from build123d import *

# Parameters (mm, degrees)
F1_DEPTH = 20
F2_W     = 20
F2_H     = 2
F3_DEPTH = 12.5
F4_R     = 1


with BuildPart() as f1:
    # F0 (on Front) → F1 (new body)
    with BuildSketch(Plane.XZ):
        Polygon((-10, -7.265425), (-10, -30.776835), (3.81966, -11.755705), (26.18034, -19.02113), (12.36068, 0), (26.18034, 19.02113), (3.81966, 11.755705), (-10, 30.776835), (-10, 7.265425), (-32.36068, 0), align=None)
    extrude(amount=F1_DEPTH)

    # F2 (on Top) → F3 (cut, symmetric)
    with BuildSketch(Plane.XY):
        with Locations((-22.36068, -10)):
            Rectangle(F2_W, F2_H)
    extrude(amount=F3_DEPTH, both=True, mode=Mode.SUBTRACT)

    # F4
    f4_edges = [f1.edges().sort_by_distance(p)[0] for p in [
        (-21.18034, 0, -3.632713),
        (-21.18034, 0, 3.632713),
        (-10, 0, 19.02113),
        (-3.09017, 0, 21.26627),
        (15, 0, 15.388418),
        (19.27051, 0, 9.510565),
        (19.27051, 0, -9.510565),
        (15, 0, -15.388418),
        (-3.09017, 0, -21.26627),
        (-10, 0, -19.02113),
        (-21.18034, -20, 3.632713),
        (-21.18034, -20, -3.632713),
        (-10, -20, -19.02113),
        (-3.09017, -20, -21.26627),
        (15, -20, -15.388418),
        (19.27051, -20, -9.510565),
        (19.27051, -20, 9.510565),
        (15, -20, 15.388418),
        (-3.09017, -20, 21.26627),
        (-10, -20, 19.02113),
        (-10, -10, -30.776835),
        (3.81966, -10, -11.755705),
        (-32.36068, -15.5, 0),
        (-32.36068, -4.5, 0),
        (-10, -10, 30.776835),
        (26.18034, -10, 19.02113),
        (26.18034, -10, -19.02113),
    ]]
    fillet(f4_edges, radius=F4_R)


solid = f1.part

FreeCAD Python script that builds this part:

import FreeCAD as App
import Part
import Sketcher

V = App.Vector
Q = App.Units.Quantity


def edges_at(feature, points):
    """Names of the edges that pass closest to the given points."""
    edges = feature.Shape.Edges
    near = lambda p: min(range(len(edges)), key=lambda i: edges[i].distToShape(Part.Vertex(*p))[0])
    return sorted({f"Edge{near(p) + 1}" for p in points})

doc = App.newDocument("Part")
body = doc.addObject("PartDesign::Body", "Body")

# Sketch on XZ plane
sketch1 = body.newObject("Sketcher::SketchObject", "Sketch")
sketch1.AttachmentSupport = (doc.getObject("XZ_Plane"), [""])
sketch1.MapMode = "FlatFace"
sketch1.addGeometry([
    Part.LineSegment(V(-10, -7.265425, 0), V(-10, -30.776835, 0)),  # 0
    Part.LineSegment(V(-10, -30.776835, 0), V(3.81966, -11.755705, 0)),  # 1
    Part.LineSegment(V(3.81966, -11.755705, 0), V(26.18034, -19.02113, 0)),  # 2
    Part.LineSegment(V(26.18034, -19.02113, 0), V(12.36068, 0, 0)),  # 3
    Part.LineSegment(V(12.36068, 0, 0), V(26.18034, 19.02113, 0)),  # 4
    Part.LineSegment(V(26.18034, 19.02113, 0), V(3.81966, 11.755705, 0)),  # 5
    Part.LineSegment(V(3.81966, 11.755705, 0), V(-10, 30.776835, 0)),  # 6
    Part.LineSegment(V(-10, 30.776835, 0), V(-10, 7.265425, 0)),  # 7
    Part.LineSegment(V(-10, 7.265425, 0), V(-32.36068, 0, 0)),  # 8
    Part.LineSegment(V(-32.36068, 0, 0), V(-10, -7.265425, 0)),  # 9
], False)
sketch1.addConstraint([
    Sketcher.Constraint("Coincident", 0, 2, 1, 1),
    Sketcher.Constraint("Coincident", 1, 2, 2, 1),
    Sketcher.Constraint("Coincident", 2, 2, 3, 1),
    Sketcher.Constraint("Coincident", 3, 2, 4, 1),
    Sketcher.Constraint("Coincident", 4, 2, 5, 1),
    Sketcher.Constraint("Coincident", 5, 2, 6, 1),
    Sketcher.Constraint("Coincident", 6, 2, 7, 1),
    Sketcher.Constraint("Coincident", 7, 2, 8, 1),
    Sketcher.Constraint("Coincident", 8, 2, 9, 1),
    Sketcher.Constraint("Coincident", 9, 2, 0, 1),
    Sketcher.Constraint("Vertical", 0),
    Sketcher.Constraint("Vertical", 7),
    Sketcher.Constraint("Symmetric", 2, 2, 4, 2, -1),
    Sketcher.Constraint("Symmetric", 1, 2, 5, 2, -1),
    Sketcher.Constraint("Symmetric", 0, 2, 6, 2, -1),
    Sketcher.Constraint("PointOnObject", 3, 2, -1),
    Sketcher.Constraint("PointOnObject", 8, 2, -1),
    Sketcher.Constraint("Parallel", 1, 4),
    Sketcher.Constraint("Parallel", 5, 8),
    Sketcher.Constraint("Parallel", 2, 9),
    Sketcher.Constraint("Equal", 1, 2),
    Sketcher.Constraint("Equal", 2, 3),
    Sketcher.Constraint("Equal", 6, 8),
    Sketcher.Constraint("Angle", 1, Q("54 deg")),
    Sketcher.Constraint("Angle", 2, Q("-17.999999 deg")),
    Sketcher.Constraint("DistanceX", 0, 2, -1, 1, Q("10 mm")),
    Sketcher.Constraint("DistanceY", 0, 2, 0, 1, Q("23.51141 mm")),
])
pad1 = body.newObject("PartDesign::Pad", "Pad")
pad1.Profile = sketch1
pad1.Length = 20

# Sketch on XY plane
sketch2 = body.newObject("Sketcher::SketchObject", "Sketch001")
sketch2.AttachmentSupport = (doc.getObject("XY_Plane"), [""])
sketch2.MapMode = "FlatFace"
sketch2.addGeometry([
    Part.LineSegment(V(-32.36068, -9, 0), V(-32.36068, -11, 0)),
    Part.LineSegment(V(-32.36068, -11, 0), V(-12.36068, -11, 0)),
    Part.LineSegment(V(-12.36068, -11, 0), V(-12.36068, -9, 0)),
    Part.LineSegment(V(-12.36068, -9, 0), V(-32.36068, -9, 0)),
], False)
sketch2.addConstraint([
    Sketcher.Constraint("Coincident", 0, 2, 1, 1),
    Sketcher.Constraint("Coincident", 1, 2, 2, 1),
    Sketcher.Constraint("Coincident", 2, 2, 3, 1),
    Sketcher.Constraint("Coincident", 3, 2, 0, 1),
    Sketcher.Constraint("Vertical", 0),
    Sketcher.Constraint("Horizontal", 1),
    Sketcher.Constraint("Vertical", 2),
    Sketcher.Constraint("Horizontal", 3),
    Sketcher.Constraint("DistanceX", 1, 1, 1, 2, Q("20 mm")),
    Sketcher.Constraint("DistanceY", 0, 2, 0, 1, Q("2 mm")),
    Sketcher.Constraint("DistanceY", 0, 2, -1, 1, Q("11 mm")),
    Sketcher.Constraint("DistanceX", 0, 2, -1, 1, Q("32.36068 mm")),
])
pocket1 = body.newObject("PartDesign::Pocket", "Pocket")
pocket1.Profile = sketch2
pocket1.Length = 25
pocket1.Midplane = True
doc.recompute()

fillet = body.newObject("PartDesign::Fillet", "Fillet")
fillet.Base = (pocket1, edges_at(pocket1, [
    (-21.18, 0, -3.633),
    (-21.18, 0, 3.633),
    (-10, 0, 19.021),
    (-3.09, 0, 21.266),
    (15, 0, 15.388),
    (19.271, 0, 9.511),
    (19.271, 0, -9.511),
    (15, 0, -15.388),
    (-3.09, 0, -21.266),
    (-10, 0, -19.021),
    (-21.18, -20, 3.633),
    (-21.18, -20, -3.633),
    (-10, -20, -19.021),
    (-3.09, -20, -21.266),
    (15, -20, -15.388),
    (19.271, -20, -9.511),
    (19.271, -20, 9.511),
    (15, -20, 15.388),
    (-3.09, -20, 21.266),
    (-10, -20, 19.021),
    (-10, -10, -30.777),
    (3.82, -10, -11.756),
    (-32.361, -15.5, 0),
    (-32.361, -4.5, 0),
    (-10, -10, 30.777),
    (26.18, -10, 19.021),
    (26.18, -10, -19.021),
]))
fillet.Radius = 1

doc.recompute()
